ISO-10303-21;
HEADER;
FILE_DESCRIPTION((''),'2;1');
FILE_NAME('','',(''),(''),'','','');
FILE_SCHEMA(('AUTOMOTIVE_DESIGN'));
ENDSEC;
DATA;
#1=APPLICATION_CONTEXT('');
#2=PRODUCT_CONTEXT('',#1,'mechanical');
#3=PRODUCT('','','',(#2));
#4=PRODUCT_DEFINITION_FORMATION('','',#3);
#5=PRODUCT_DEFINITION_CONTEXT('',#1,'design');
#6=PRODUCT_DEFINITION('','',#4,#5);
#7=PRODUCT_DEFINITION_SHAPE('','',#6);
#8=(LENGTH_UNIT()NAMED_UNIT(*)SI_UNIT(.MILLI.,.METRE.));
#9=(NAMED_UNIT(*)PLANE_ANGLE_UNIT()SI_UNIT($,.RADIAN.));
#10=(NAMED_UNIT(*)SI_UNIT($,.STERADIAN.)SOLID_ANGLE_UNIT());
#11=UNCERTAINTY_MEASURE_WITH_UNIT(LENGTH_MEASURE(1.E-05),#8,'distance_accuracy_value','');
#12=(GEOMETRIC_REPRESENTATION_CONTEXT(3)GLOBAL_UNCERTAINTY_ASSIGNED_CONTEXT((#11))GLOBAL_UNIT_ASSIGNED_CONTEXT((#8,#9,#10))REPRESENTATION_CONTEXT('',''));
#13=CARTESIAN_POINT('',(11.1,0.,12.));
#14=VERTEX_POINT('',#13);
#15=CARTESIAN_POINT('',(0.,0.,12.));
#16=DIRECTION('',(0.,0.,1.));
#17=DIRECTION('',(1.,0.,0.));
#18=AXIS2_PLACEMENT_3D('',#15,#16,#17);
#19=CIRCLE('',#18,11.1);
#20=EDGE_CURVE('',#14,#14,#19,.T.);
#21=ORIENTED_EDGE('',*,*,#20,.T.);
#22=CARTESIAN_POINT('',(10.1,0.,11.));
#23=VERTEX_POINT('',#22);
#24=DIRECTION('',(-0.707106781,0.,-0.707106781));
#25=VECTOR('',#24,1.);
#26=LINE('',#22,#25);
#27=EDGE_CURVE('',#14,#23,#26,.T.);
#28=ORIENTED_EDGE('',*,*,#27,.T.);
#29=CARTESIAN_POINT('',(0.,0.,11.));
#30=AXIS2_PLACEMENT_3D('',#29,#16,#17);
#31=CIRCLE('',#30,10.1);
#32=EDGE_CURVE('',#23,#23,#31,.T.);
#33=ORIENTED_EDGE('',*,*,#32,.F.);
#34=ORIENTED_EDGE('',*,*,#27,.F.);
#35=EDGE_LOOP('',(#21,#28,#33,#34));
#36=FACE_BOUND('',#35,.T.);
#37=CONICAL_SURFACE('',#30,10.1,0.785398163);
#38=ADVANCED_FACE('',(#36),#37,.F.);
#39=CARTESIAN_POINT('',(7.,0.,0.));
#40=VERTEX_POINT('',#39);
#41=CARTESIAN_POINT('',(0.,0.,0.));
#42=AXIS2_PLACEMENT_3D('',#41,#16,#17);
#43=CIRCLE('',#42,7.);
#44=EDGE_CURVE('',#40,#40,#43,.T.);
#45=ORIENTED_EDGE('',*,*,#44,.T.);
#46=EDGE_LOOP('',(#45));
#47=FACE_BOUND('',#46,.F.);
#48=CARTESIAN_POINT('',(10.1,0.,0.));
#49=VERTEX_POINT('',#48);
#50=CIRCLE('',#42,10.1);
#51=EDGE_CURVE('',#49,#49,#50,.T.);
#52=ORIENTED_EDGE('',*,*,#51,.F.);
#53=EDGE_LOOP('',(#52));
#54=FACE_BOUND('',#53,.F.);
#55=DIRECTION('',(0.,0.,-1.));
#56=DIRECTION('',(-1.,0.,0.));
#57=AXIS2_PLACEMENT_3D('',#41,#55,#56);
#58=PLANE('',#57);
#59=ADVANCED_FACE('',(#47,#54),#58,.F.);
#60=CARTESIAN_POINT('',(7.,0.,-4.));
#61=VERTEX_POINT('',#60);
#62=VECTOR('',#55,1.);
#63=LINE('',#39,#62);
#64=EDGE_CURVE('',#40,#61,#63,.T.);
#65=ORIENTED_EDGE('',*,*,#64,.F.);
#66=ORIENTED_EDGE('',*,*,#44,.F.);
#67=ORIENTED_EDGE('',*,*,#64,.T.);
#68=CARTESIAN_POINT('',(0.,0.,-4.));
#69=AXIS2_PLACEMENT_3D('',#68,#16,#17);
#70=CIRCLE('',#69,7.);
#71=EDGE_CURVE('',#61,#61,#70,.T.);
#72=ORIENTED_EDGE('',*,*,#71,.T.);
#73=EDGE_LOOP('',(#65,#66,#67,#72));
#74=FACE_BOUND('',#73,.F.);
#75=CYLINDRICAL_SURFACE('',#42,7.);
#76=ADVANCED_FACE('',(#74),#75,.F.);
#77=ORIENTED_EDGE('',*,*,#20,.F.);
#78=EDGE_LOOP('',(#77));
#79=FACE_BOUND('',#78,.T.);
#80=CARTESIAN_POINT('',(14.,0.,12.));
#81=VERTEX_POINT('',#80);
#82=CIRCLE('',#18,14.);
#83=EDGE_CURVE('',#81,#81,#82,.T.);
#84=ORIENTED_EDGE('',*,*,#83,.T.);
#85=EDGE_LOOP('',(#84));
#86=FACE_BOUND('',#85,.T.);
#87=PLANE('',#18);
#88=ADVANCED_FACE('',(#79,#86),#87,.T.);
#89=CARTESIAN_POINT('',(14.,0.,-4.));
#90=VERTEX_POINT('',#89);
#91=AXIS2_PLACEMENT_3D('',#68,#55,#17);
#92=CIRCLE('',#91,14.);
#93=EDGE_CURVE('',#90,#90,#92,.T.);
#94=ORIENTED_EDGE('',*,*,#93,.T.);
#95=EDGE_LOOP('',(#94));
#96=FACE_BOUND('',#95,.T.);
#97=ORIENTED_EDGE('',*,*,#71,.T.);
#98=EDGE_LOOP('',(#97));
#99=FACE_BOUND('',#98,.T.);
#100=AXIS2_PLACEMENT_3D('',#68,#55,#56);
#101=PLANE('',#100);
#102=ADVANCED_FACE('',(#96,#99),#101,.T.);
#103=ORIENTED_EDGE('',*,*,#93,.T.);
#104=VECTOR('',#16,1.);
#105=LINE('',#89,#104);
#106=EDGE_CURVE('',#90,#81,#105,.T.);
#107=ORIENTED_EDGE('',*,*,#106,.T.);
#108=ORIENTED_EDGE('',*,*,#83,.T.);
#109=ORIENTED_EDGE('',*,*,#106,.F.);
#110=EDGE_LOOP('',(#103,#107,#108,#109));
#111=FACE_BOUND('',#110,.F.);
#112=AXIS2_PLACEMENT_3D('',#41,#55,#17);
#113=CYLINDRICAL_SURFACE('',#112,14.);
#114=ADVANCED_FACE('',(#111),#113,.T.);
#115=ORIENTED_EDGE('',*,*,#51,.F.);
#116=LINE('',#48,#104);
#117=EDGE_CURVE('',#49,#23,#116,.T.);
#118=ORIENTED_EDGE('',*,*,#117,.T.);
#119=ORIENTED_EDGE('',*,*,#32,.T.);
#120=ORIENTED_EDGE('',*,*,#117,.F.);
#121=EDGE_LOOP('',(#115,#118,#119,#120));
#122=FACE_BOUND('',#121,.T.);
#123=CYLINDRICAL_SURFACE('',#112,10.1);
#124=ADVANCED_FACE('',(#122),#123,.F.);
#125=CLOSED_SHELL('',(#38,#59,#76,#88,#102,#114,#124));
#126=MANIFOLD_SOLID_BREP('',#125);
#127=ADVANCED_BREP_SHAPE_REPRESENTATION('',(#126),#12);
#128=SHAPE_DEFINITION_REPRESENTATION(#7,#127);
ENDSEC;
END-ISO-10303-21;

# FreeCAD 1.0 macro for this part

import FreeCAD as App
import Part
import Sketcher
from FreeCAD import Vector


def edges_at(feature, points):
    """Names of the edges that pass closest to the given points."""
    edges = feature.Shape.Edges
    near = lambda p: min(range(len(edges)), key=lambda i: edges[i].distToShape(Part.Vertex(*p))[0])
    return sorted({f"Edge{near(p) + 1}" for p in points})

doc = App.newDocument("Part")
params = doc.addObject("Spreadsheet::Sheet", "Params")
for row, (alias, value) in enumerate([
    ("sketch1_diameter", "28 mm"),
    ("sketch1_diameter2", "20.2 mm"),
    ("pad1_length", "12 mm"),
    ("sketch2_diameter", "28 mm"),
    ("pad2_length", "4 mm"),
    ("sketch3_diameter", "14 mm"),
    ("chamfer_size", "1 mm"),
], start=1):
    params.set(f"A{row}", alias)
    params.set(f"B{row}", "=" + value)
    params.setAlias(f"B{row}", alias)

body = doc.addObject("PartDesign::Body", "Body")

sketch1 = doc.addObject("Sketcher::SketchObject", "Sketch")
body.addObject(sketch1)
sketch1.AttachmentSupport = (doc.XY_Plane, [""])
sketch1.MapMode = "FlatFace"
sketch1.addGeometry([
    Part.Circle(Vector(0, 0, 0), Vector(0, 0, 1), 14),
    Part.Circle(Vector(0, 0, 0), Vector(0, 0, 1), 10.1),
], False)
sketch1.addConstraint([
    Sketcher.Constraint("Coincident", 0, 3, -1, 1),
    Sketcher.Constraint("Coincident", 1, 3, -1, 1),
    Sketcher.Constraint("Diameter", 0, 28.0),
    Sketcher.Constraint("Diameter", 1, 20.2),
])
sketch1.setExpression("Constraints[2]", "Params.sketch1_diameter")
sketch1.setExpression("Constraints[3]", "Params.sketch1_diameter2")
pad1 = doc.addObject("PartDesign::Pad", "Pad")
body.addObject(pad1)
pad1.Profile = sketch1
pad1.setExpression("Length", "Params.pad1_length")

sketch2 = doc.addObject("Sketcher::SketchObject", "Sketch001")
body.addObject(sketch2)
sketch2.AttachmentSupport = (doc.XY_Plane, [""])
sketch2.MapMode = "FlatFace"
sketch2.addGeometry(Part.Circle(Vector(0, 0, 0), Vector(0, 0, 1), 14), False)
sketch2.addConstraint([
    Sketcher.Constraint("Coincident", 0, 3, -1, 1),
    Sketcher.Constraint("Diameter", 0, 28.0),
])
sketch2.setExpression("Constraints[1]", "Params.sketch2_diameter")
pad2 = doc.addObject("PartDesign::Pad", "Pad001")
body.addObject(pad2)
pad2.Profile = sketch2
pad2.setExpression("Length", "Params.pad2_length")
pad2.Reversed = True

sketch3 = doc.addObject("Sketcher::SketchObject", "Sketch002")
body.addObject(sketch3)
sketch3.AttachmentSupport = (doc.XY_Plane, [""])
sketch3.MapMode = "FlatFace"
sketch3.addGeometry(Part.Circle(Vector(0, 0, 0), Vector(0, 0, 1), 7), False)
sketch3.addConstraint([
    Sketcher.Constraint("Coincident", 0, 3, -1, 1),
    Sketcher.Constraint("Diameter", 0, 14.0),
])
sketch3.setExpression("Constraints[1]", "Params.sketch3_diameter")
pocket1 = doc.addObject("PartDesign::Pocket", "Pocket")
body.addObject(pocket1)
pocket1.Profile = sketch3
pocket1.Type = "ThroughAll"
doc.recompute()

chamfer = doc.addObject("PartDesign::Chamfer", "Chamfer")
body.addObject(chamfer)
chamfer.Base = (pocket1, edges_at(pocket1, [(-10.1, 0, 12)]))
chamfer.setExpression("Size", "Params.chamfer_size")

doc.recompute()
